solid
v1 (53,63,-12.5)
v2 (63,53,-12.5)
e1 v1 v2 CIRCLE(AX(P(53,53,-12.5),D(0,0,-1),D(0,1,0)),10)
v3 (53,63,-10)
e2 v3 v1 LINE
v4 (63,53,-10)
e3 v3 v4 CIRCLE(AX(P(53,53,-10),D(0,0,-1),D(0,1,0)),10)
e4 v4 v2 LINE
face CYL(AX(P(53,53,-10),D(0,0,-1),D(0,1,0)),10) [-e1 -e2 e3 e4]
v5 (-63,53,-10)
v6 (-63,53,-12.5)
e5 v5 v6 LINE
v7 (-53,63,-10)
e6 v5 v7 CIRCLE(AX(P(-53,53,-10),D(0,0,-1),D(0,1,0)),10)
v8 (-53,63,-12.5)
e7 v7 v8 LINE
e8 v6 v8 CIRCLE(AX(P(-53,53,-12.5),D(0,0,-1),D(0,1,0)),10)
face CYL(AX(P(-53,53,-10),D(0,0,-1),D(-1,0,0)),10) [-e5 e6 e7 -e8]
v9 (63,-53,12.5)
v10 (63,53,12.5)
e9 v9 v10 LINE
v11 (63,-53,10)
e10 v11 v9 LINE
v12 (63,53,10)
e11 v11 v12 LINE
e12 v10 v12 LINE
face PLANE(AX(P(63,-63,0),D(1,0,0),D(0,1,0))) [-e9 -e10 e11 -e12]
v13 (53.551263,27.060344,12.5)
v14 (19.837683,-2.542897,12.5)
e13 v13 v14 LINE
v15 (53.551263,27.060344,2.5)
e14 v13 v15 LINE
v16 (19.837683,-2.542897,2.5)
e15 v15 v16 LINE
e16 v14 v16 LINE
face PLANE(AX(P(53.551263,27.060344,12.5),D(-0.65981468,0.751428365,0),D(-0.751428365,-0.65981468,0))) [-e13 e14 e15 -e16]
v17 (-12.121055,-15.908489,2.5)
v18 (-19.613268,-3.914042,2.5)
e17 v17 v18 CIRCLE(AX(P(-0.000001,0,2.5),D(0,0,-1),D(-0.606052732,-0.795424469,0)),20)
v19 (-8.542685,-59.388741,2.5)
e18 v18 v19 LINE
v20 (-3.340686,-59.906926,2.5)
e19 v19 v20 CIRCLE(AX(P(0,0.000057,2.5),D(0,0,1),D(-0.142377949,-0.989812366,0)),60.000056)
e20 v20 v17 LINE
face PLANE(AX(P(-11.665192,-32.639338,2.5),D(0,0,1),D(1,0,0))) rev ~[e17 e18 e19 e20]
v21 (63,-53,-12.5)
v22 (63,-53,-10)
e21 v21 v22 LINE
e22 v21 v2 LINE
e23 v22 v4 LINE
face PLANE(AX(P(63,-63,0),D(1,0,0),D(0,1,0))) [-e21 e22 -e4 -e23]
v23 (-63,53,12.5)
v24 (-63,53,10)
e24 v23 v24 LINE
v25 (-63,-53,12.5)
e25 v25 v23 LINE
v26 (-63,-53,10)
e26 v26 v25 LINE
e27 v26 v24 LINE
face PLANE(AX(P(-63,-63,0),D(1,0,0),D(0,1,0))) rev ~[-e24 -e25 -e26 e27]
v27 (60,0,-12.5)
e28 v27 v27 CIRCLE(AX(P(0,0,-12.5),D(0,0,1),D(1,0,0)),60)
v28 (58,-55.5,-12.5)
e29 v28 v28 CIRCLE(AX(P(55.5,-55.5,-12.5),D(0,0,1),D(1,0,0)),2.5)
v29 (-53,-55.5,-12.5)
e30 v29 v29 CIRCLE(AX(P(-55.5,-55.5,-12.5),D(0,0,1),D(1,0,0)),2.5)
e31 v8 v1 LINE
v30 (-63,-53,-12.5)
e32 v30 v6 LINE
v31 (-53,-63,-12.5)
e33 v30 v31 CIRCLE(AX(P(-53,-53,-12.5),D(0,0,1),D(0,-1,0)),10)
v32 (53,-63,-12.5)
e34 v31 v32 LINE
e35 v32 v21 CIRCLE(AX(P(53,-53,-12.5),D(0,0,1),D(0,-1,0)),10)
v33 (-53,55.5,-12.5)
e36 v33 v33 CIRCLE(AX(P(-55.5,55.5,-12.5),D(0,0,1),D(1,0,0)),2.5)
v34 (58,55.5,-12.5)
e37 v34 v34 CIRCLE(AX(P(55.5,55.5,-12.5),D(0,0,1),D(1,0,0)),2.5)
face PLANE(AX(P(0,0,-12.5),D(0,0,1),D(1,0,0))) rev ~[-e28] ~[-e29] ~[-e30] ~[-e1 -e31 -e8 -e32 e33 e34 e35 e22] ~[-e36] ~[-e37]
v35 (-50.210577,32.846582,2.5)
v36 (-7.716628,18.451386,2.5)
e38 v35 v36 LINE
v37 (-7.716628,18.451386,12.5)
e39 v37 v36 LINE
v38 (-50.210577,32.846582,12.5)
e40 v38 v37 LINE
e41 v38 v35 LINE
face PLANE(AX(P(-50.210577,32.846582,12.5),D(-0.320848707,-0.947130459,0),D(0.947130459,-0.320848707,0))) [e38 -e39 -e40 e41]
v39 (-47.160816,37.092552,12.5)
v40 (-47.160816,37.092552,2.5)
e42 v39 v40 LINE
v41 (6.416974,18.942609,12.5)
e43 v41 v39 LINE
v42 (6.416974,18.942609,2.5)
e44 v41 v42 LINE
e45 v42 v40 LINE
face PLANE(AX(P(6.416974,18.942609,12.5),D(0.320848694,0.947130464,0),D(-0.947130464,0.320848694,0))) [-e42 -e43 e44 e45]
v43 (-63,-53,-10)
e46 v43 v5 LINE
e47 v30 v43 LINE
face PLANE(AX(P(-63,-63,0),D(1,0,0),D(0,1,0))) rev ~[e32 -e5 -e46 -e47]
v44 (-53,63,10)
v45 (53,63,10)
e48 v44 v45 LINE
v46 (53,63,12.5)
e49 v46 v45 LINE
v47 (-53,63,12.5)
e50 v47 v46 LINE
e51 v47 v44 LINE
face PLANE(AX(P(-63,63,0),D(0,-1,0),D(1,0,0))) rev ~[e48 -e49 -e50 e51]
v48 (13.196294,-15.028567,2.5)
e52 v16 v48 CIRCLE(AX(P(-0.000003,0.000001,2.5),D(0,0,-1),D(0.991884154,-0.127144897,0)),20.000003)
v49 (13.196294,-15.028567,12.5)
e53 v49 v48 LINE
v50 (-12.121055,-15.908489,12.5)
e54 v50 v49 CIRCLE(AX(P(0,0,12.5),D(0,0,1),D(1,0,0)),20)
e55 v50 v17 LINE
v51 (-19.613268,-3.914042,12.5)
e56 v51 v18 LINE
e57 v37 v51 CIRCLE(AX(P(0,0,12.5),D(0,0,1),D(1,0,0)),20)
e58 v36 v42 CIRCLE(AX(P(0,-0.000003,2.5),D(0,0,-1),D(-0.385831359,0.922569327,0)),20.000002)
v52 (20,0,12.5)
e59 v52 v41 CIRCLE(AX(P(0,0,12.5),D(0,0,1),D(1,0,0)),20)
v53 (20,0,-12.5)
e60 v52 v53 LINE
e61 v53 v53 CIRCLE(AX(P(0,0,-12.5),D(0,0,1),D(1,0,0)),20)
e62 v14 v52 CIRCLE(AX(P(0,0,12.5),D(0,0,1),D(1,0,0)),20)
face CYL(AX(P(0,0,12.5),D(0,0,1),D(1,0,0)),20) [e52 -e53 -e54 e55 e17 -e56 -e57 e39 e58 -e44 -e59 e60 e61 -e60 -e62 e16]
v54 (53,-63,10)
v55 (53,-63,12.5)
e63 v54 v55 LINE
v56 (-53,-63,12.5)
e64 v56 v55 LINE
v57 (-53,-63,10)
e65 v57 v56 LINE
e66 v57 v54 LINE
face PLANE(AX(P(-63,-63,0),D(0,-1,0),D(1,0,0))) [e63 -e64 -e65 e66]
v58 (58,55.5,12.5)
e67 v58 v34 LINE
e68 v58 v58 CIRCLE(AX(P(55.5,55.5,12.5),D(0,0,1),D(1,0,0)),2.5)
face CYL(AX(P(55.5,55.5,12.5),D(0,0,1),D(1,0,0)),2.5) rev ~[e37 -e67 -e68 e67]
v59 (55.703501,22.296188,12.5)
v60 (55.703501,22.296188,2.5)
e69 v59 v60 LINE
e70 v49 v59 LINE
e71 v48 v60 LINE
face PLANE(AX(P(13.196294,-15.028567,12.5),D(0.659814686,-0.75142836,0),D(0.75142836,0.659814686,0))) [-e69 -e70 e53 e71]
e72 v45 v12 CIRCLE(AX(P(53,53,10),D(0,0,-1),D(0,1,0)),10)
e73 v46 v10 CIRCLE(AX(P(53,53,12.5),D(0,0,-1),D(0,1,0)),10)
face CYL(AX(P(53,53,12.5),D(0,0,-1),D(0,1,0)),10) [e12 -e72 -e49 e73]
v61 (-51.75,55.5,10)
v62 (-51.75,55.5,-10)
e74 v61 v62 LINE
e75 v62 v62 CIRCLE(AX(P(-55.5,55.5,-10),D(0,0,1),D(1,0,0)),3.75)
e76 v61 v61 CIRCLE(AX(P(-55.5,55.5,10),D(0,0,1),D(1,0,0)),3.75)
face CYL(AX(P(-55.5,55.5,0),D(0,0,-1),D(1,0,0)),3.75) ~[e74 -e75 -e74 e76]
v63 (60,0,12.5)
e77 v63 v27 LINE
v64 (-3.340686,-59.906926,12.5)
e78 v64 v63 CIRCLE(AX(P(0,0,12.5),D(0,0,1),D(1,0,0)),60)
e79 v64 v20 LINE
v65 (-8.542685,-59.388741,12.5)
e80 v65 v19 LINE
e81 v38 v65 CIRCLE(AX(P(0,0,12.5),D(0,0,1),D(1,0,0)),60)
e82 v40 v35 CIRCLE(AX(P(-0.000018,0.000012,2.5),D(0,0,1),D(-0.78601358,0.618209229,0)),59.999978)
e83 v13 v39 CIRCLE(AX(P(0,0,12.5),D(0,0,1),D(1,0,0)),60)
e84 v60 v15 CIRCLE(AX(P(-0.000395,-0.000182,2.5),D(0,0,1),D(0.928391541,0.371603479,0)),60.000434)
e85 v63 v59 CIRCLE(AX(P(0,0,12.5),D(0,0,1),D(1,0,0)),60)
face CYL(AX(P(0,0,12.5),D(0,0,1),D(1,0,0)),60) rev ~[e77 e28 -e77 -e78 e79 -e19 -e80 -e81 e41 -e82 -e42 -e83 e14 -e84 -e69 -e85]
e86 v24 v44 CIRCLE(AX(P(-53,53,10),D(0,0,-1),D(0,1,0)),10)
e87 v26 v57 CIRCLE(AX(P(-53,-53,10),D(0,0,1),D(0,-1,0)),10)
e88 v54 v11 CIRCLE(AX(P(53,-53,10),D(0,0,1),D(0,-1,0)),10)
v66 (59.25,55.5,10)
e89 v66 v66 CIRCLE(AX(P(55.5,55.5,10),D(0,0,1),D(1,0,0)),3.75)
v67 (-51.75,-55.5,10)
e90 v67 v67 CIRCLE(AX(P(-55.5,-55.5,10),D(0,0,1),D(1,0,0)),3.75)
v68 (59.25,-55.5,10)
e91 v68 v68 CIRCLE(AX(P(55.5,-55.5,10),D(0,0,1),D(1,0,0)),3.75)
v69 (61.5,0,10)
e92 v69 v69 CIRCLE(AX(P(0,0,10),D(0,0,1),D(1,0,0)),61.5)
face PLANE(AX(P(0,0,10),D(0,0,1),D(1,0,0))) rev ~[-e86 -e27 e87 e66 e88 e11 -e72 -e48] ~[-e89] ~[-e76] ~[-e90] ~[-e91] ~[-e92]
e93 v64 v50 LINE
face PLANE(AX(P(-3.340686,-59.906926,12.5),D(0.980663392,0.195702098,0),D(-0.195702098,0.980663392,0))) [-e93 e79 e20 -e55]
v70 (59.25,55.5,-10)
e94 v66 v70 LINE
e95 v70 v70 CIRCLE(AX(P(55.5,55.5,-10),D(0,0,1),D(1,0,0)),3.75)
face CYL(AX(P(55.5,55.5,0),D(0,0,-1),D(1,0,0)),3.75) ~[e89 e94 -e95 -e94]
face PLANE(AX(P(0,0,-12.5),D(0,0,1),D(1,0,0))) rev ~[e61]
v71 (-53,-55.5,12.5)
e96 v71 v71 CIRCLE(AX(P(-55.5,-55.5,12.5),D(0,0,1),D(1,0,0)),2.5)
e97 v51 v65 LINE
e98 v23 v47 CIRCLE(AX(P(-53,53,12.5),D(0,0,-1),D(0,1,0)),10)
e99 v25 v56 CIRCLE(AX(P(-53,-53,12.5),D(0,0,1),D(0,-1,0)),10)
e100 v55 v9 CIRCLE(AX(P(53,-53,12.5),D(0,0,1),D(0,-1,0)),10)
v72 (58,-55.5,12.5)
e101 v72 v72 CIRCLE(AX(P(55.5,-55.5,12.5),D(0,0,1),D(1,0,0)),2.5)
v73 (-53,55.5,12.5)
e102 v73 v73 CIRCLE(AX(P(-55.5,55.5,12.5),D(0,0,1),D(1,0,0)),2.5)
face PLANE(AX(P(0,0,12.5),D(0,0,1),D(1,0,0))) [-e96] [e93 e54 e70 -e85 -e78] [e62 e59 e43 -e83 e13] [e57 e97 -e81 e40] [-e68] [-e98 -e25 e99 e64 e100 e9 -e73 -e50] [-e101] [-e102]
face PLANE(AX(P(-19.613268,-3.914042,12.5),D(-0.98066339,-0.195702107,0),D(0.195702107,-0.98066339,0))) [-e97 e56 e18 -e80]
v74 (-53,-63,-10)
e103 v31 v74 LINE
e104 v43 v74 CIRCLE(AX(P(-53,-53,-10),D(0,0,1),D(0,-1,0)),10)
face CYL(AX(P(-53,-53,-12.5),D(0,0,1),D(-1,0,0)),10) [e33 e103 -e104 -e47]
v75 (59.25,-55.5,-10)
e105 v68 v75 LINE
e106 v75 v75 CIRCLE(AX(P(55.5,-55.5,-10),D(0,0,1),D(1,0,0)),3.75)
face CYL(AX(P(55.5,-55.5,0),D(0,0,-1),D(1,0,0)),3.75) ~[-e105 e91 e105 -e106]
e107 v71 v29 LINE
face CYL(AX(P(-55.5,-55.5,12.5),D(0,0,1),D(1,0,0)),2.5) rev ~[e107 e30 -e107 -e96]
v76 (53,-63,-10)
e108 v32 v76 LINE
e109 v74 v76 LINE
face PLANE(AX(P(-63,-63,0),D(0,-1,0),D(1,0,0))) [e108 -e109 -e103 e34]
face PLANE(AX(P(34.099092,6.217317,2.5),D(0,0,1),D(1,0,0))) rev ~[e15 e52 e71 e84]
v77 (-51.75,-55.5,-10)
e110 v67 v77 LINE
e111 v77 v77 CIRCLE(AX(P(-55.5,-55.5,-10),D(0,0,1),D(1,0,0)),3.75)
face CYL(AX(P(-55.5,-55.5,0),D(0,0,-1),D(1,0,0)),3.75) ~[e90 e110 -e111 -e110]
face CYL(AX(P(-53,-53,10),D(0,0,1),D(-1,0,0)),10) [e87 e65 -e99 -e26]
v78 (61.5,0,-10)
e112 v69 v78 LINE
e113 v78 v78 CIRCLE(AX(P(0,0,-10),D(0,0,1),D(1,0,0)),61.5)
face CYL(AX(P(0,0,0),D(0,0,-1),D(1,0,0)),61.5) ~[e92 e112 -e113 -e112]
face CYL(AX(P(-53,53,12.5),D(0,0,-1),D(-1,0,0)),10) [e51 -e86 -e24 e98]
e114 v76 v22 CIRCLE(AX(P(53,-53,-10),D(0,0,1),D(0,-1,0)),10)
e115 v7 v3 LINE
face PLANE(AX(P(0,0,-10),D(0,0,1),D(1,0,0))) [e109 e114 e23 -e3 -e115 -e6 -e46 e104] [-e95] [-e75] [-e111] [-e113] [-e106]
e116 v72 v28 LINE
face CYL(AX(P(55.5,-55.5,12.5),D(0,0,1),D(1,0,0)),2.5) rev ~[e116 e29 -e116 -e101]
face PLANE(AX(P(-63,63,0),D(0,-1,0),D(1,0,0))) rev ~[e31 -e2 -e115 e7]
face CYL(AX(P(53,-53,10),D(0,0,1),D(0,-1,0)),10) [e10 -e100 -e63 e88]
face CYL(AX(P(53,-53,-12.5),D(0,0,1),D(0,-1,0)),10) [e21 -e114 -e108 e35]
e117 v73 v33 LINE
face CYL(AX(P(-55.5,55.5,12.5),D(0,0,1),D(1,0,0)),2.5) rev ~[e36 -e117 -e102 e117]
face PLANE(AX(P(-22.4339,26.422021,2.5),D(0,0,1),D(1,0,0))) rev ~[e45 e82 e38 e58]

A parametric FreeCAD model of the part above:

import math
import FreeCAD as App
import Part
import Sketcher
from FreeCAD import Vector


def edges_at(feature, points):
    """Names of the edges that pass closest to the given points."""
    edges = feature.Shape.Edges
    near = lambda p: min(range(len(edges)), key=lambda i: edges[i].distToShape(Part.Vertex(*p))[0])
    return sorted({f"Edge{near(p) + 1}" for p in points})

doc = App.newDocument("Part")
body = doc.addObject("PartDesign::Body", "Body")
body.AllowCompound = True

# Sketch on XY plane
sketch1 = doc.addObject("Sketcher::SketchObject", "Sketch")
body.addObject(sketch1)
sketch1.AttachmentSupport = (doc.XY_Plane, [""])
sketch1.MapMode = "FlatFace"
sketch1.addGeometry([
    Part.LineSegment(Vector(-63, 63, 0), Vector(-63, -63, 0)),
    Part.LineSegment(Vector(-63, -63, 0), Vector(63, -63, 0)),
    Part.LineSegment(Vector(63, -63, 0), Vector(63, 63, 0)),
    Part.LineSegment(Vector(63, 63, 0), Vector(-63, 63, 0)),
], False)
sketch1.addConstraint([
    Sketcher.Constraint("Coincident", 0, 2, 1, 1),
    Sketcher.Constraint("Coincident", 1, 2, 2, 1),
    Sketcher.Constraint("Coincident", 2, 2, 3, 1),
    Sketcher.Constraint("Coincident", 3, 2, 0, 1),
    Sketcher.Constraint("Vertical", 0),
    Sketcher.Constraint("Horizontal", 1),
    Sketcher.Constraint("Vertical", 2),
    Sketcher.Constraint("Horizontal", 3),
    Sketcher.Constraint("Symmetric", 0, 2, 2, 2, -1, 1),
    Sketcher.Constraint("Equal", 3, 0),
    Sketcher.Constraint("DistanceX", 1, 1, 1, 2, 126.0),
])
pad1 = doc.addObject("PartDesign::Pad", "Pad")
body.addObject(pad1)
pad1.Profile = sketch1
pad1.Length = 25
pad1.Midplane = True

# Sketch on XY plane
sketch2 = doc.addObject("Sketcher::SketchObject", "Sketch001")
body.addObject(sketch2)
sketch2.AttachmentSupport = (doc.XY_Plane, [""])
sketch2.MapMode = "FlatFace"
sketch2.AttachmentOffset = App.Placement(Vector(0, 0, 12.5), App.Rotation())
sketch2.addGeometry([
    Part.Circle(Vector(0, 0, 0), Vector(0, 0, 1), 60),  # 0
    Part.Circle(Vector(0, 0, 0), Vector(0, 0, 1), 20),  # 1
    Part.Circle(Vector(55.5, -55.5, 0), Vector(0, 0, 1), 2.5),  # 2
    Part.Circle(Vector(-55.5, -55.5, 0), Vector(0, 0, 1), 2.5),  # 3
    Part.Circle(Vector(-55.5, 55.5, 0), Vector(0, 0, 1), 2.5),  # 4
    Part.Circle(Vector(55.5, 55.5, 0), Vector(0, 0, 1), 2.5),  # 5
], False)
sketch2.addConstraint([
    Sketcher.Constraint("Coincident", 0, 3, -1, 1),
    Sketcher.Constraint("Coincident", 1, 3, -1, 1),
    Sketcher.Constraint("Equal", 2, 3),
    Sketcher.Constraint("Equal", 3, 4),
    Sketcher.Constraint("Equal", 4, 5),
    Sketcher.Constraint("Symmetric", 2, 3, 4, 3, -1, 1),
    Sketcher.Constraint("Symmetric", 3, 3, 5, 3, -1, 1),
    Sketcher.Constraint("Symmetric", 2, 3, 3, 3, -2),
    Sketcher.Constraint("Diameter", 0, 120.0),
    Sketcher.Constraint("Diameter", 1, 40.0),
    Sketcher.Constraint("Diameter", 2, 5.0),
    Sketcher.Constraint("DistanceX", 3, 3, 2, 3, 111.0),
    Sketcher.Constraint("DistanceY", 3, 3, 4, 3, 111.0),
])
pocket1 = doc.addObject("PartDesign::Pocket", "Pocket")
body.addObject(pocket1)
pocket1.Profile = sketch2
pocket1.Type = "ThroughAll"

# Sketch on XY plane
sketch3 = doc.addObject("Sketcher::SketchObject", "Sketch002")
body.addObject(sketch3)
sketch3.AttachmentSupport = (doc.XY_Plane, [""])
sketch3.MapMode = "FlatFace"
sketch3.AttachmentOffset = App.Placement(Vector(0, 0, 12.5), App.Rotation())
sketch3.addGeometry([
    Part.LineSegment(Vector(6.416974, 18.942609, 0), Vector(-47.160816, 37.092552, 0)),  # 0
    Part.ArcOfCircle(Part.Circle(Vector(-0.000018, 0.000012, 0), Vector(0, 0, 1), 59.999978), math.radians(141.814519), math.radians(146.808229)),  # 1
    Part.LineSegment(Vector(-50.210577, 32.846582, 0), Vector(-7.716628, 18.451386, 0)),  # 2
    Part.ArcOfCircle(Part.Circle(Vector(0, -0.000003, 0), Vector(0, 0, 1), 20.000002), math.radians(71.285744), math.radians(112.695362)),  # 3
    Part.ArcOfCircle(Part.Circle(Vector(0, 0.000057, 0), Vector(0, 0, 1), 60.000056), math.radians(-98.185471), math.radians(-93.191768)),  # 4
    Part.LineSegment(Vector(-3.340686, -59.906926, 0), Vector(-12.121055, -15.908489, 0)),  # 5
    Part.ArcOfCircle(Part.Circle(Vector(-0.000001, 0, 0), Vector(0, 0, 1), 20), math.radians(-168.714258), math.radians(-127.304634)),  # 6
    Part.LineSegment(Vector(-19.613268, -3.914042, 0), Vector(-8.542685, -59.388741, 0)),  # 7
    Part.ArcOfCircle(Part.Circle(Vector(-0.000395, -0.000182, 0), Vector(0, 0, 1), 60.000434), math.radians(21.814542), math.radians(26.808214)),  # 8
    Part.LineSegment(Vector(53.551263, 27.060344, 0), Vector(19.837683, -2.542897, 0)),  # 9
    Part.ArcOfCircle(Part.Circle(Vector(-0.000003, 0.000001, 0), Vector(0, 0, 1), 20.000003), math.radians(-48.714253), math.radians(-7.304638)),  # 10
    Part.LineSegment(Vector(13.196294, -15.028567, 0), Vector(55.703501, 22.296188, 0)),  # 11
], False)
sketch3.addConstraint([
    Sketcher.Constraint("Coincident", 0, 2, 1, 1),
    Sketcher.Constraint("Coincident", 1, 2, 2, 1),
    Sketcher.Constraint("Coincident", 2, 2, 3, 2),
    Sketcher.Constraint("Coincident", 3, 1, 0, 1),
    Sketcher.Constraint("Coincident", 4, 2, 5, 1),
    Sketcher.Constraint("Coincident", 5, 2, 6, 2),
    Sketcher.Constraint("Coincident", 6, 1, 7, 1),
    Sketcher.Constraint("Coincident", 7, 2, 4, 1),
    Sketcher.Constraint("Coincident", 8, 2, 9, 1),
    Sketcher.Constraint("Coincident", 9, 2, 10, 2),
    Sketcher.Constraint("Coincident", 10, 1, 11, 1),
    Sketcher.Constraint("Coincident", 11, 2, 8, 1),
    Sketcher.Constraint("Coincident", 3, 3, -1, 1),
    Sketcher.Constraint("Coincident", 6, 3, -1, 1),
    Sketcher.Constraint("Coincident", 10, 3, -1, 1),
    Sketcher.Constraint("PointOnObject", 4, 3, -2),
    Sketcher.Constraint("Radius", 6, 20.0),
    Sketcher.Constraint("Radius", 1, 59.999978),
    Sketcher.Constraint("Radius", 3, 20.000002),
    Sketcher.Constraint("Radius", 4, 60.000056),
    Sketcher.Constraint("Radius", 8, 60.000434),
    Sketcher.Constraint("Radius", 10, 20.000003),
    Sketcher.Constraint("DistanceX", 7, 2, 4, 2, 5.201999),
    Sketcher.Constraint("DistanceX", -1, 1, 11, 2, 55.703501),
    Sketcher.Constraint("DistanceX", 2, 2, 3, 1, 14.133602),
    Sketcher.Constraint("DistanceY", 5, 2, 1, 3, 15.908501),
    Sketcher.Constraint("DistanceY", 7, 2, 6, 1, 55.474699),
    Sketcher.Constraint("DistanceY", 9, 2, 10, 3, 2.542898),
    Sketcher.Constraint("DistanceX", 1, 3, 9, 2, 19.837701),
    Sketcher.Constraint("DistanceY", -1, 1, 0, 2, 37.092552),
    Sketcher.Constraint("DistanceY", -1, 1, 3, 1, 18.942609),
    Sketcher.Constraint("DistanceY", 5, 2, -1, 1, 15.908489),
    Sketcher.Constraint("DistanceY", 6, 1, -1, 1, 3.914042),
    Sketcher.Constraint("DistanceY", -1, 1, 11, 2, 22.296188),
    Sketcher.Constraint("DistanceY", 8, 3, 3, 3, 0.00018),
    Sketcher.Constraint("DistanceY", 8, 3, 4, 3, 0.000239),
    Sketcher.Constraint("DistanceX", 1, 2, 0, 2, 3.049761),
    Sketcher.Constraint("DistanceX", 3, 1, 8, 2, 47.134289),
    Sketcher.Constraint("DistanceX", 10, 1, 9, 2, 6.641389),
])
pad2 = doc.addObject("PartDesign::Pad", "Pad001")
body.addObject(pad2)
pad2.Profile = sketch3
pad2.Length = 10
pad2.Reversed = True

# Sketch on XY plane
sketch4 = doc.addObject("Sketcher::SketchObject", "Sketch003")
body.addObject(sketch4)
sketch4.AttachmentSupport = (doc.XY_Plane, [""])
sketch4.MapMode = "FlatFace"
sketch4.addGeometry([
    Part.LineSegment(Vector(-63, 63, 0), Vector(-63, -63, 0)),  # 0
    Part.LineSegment(Vector(-63, -63, 0), Vector(63, -63, 0)),  # 1
    Part.LineSegment(Vector(63, -63, 0), Vector(63, 63, 0)),  # 2
    Part.LineSegment(Vector(63, 63, 0), Vector(-63, 63, 0)),  # 3
    Part.Circle(Vector(-55.5, -55.5, 0), Vector(0, 0, 1), 3.8),  # 4
    Part.Circle(Vector(55.5, -55.5, 0), Vector(0, 0, 1), 3.8),  # 5
    Part.Circle(Vector(-55.5, 55.5, 0), Vector(0, 0, 1), 3.8),  # 6
    Part.Circle(Vector(0, 0, 0), Vector(0, 0, 1), 61.5),  # 7
    Part.Circle(Vector(55.5, 55.5, 0), Vector(0, 0, 1), 3.8),  # 8
], False)
sketch4.addConstraint([
    Sketcher.Constraint("Coincident", 0, 2, 1, 1),
    Sketcher.Constraint("Coincident", 1, 2, 2, 1),
    Sketcher.Constraint("Coincident", 2, 2, 3, 1),
    Sketcher.Constraint("Coincident", 3, 2, 0, 1),
    Sketcher.Constraint("Vertical", 0),
    Sketcher.Constraint("Horizontal", 1),
    Sketcher.Constraint("Vertical", 2),
    Sketcher.Constraint("Horizontal", 3),
    Sketcher.Constraint("Coincident", 7, 3, -1, 1),
    Sketcher.Constraint("Equal", 4, 5),
    Sketcher.Constraint("Equal", 5, 6),
    Sketcher.Constraint("Equal", 6, 8),
    Sketcher.Constraint("Symmetric", 5, 3, 6, 3, -1, 1),
    Sketcher.Constraint("Symmetric", 4, 3, 8, 3, -1, 1),
    Sketcher.Constraint("Symmetric", 0, 2, 2, 2, -1, 1),
    Sketcher.Constraint("Symmetric", 4, 3, 5, 3, -2),
    Sketcher.Constraint("Equal", 3, 0),
    Sketcher.Constraint("Diameter", 7, 123.0),
    Sketcher.Constraint("Diameter", 4, 7.5),
    Sketcher.Constraint("DistanceX", 1, 1, 1, 2, 126.0),
    Sketcher.Constraint("DistanceX", 4, 3, 5, 3, 111.0),
    Sketcher.Constraint("DistanceY", 4, 3, 6, 3, 111.0),
])
pocket2 = doc.addObject("PartDesign::Pocket", "Pocket001")
body.addObject(pocket2)
pocket2.Profile = sketch4
pocket2.Length = 20
pocket2.Midplane = True
doc.recompute()

fillet = doc.addObject("PartDesign::Fillet", "Fillet")
body.addObject(fillet)
fillet.Base = (pocket2, edges_at(pocket2, [
    (63, 63, -11.25),
    (63, 63, 11.25),
    (-63, 63, -11.25),
    (-63, 63, 11.25),
    (-63, -63, -11.25),
    (-63, -63, 11.25),
    (63, -63, -11.25),
    (63, -63, 11.25),
]))
fillet.Radius = 10

doc.recompute()
